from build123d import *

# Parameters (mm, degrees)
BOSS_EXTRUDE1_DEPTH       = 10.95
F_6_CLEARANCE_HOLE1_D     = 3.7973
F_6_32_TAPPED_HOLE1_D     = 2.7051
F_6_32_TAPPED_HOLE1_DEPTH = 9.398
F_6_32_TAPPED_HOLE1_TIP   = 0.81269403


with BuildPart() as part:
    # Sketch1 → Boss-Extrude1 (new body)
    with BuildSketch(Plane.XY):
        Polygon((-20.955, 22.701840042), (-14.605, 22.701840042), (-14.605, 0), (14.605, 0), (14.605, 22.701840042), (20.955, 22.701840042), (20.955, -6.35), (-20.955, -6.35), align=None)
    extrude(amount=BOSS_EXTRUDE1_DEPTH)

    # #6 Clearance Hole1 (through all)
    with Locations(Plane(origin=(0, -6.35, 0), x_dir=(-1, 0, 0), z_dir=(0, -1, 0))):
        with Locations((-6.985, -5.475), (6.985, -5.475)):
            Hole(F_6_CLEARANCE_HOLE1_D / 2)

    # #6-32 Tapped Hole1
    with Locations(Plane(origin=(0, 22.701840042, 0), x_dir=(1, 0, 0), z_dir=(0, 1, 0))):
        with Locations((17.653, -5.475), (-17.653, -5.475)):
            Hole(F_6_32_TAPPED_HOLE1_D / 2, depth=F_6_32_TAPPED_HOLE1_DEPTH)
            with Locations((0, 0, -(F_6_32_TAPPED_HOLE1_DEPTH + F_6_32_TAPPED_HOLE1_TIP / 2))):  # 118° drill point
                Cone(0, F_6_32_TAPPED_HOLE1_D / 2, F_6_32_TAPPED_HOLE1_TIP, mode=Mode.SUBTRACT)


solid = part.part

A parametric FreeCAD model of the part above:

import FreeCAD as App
import Part
import Sketcher
from FreeCAD import Vector
Q = App.Units.Quantity


def add_polygon(sketch, points):
    """Adds a closed chain of lines whose ends are joined by coincident constraints."""
    first, n = sketch.GeometryCount, len(points)
    for a, b in zip(points, points[1:] + points[:1]):
        sketch.addGeometry(Part.LineSegment(App.Vector(*a, 0), App.Vector(*b, 0)), False)
    for i in range(n):
        sketch.addConstraint(Sketcher.Constraint("Coincident", first + i, 2, first + (i + 1) % n, 1))

doc = App.newDocument("Part")
body = doc.addObject("PartDesign::Body", "Body")

# Sketch on XY plane
sketch1 = doc.addObject("Sketcher::SketchObject", "Sketch")
body.addObject(sketch1)
sketch1.AttachmentSupport = (doc.XY_Plane, [""])
sketch1.MapMode = "FlatFace"
add_polygon(sketch1, [(-14.605, 22.70184), (-20.955, 22.70184), (-20.955, -6.35), (20.955, -6.35), (20.955, 22.70184), (14.605, 22.70184), (14.605, 0), (-14.605, 0)])  # lines 0-7
sketch1.addConstraint([
    Sketcher.Constraint("Horizontal", 0),
    Sketcher.Constraint("Vertical", 1),
    Sketcher.Constraint("Horizontal", 2),
    Sketcher.Constraint("Vertical", 3),
    Sketcher.Constraint("Horizontal", 4),
    Sketcher.Constraint("Vertical", 5),
    Sketcher.Constraint("Horizontal", 6),
    Sketcher.Constraint("Vertical", 7),
    Sketcher.Constraint("Symmetric", 5, 2, 6, 2, -1, 1),
    Sketcher.Constraint("Symmetric", 0, 2, 3, 2, -2),
    Sketcher.Constraint("DistanceX", 0, 2, 0, 1, Q("0.25 in")),
    Sketcher.Constraint("DistanceX", 2, 1, 2, 2, Q("1.65 in")),
    Sketcher.Constraint("DistanceY", 1, 2, -1, 1, Q("0.25 in")),
    Sketcher.Constraint("DistanceY", 1, 2, 1, 1, 29.05184),
])
pad1 = doc.addObject("PartDesign::Pad", "Pad")
body.addObject(pad1)
pad1.Profile = sketch1
pad1.Length = 10.95

# Sketch on XZ plane
sketch2 = doc.addObject("Sketcher::SketchObject", "Sketch001")
body.addObject(sketch2)
sketch2.AttachmentSupport = (doc.XZ_Plane, [""])
sketch2.MapMode = "FlatFace"
sketch2.AttachmentOffset = App.Placement(Vector(0, 0, 0.25 * 25.4), App.Rotation())
sketch2.addGeometry([
    Part.Circle(Vector(6.985, 5.475, 0), Vector(0, 0, 1), 1.89865),
    Part.Circle(Vector(-6.985, 5.475, 0), Vector(0, 0, 1), 1.89865),
], False)
sketch2.addConstraint([
    Sketcher.Constraint("Equal", 0, 1),
    Sketcher.Constraint("Symmetric", 0, 3, 1, 3, -2),
    Sketcher.Constraint("Diameter", 0, Q("0.1495 in")),
    Sketcher.Constraint("DistanceX", 1, 3, 0, 3, Q("0.55 in")),
    Sketcher.Constraint("DistanceY", -1, 1, 0, 3, 5.475),
])
doc.recompute()
hole = doc.addObject("PartDesign::Hole", "Hole")
body.addObject(hole)
hole.Profile = sketch2
hole.ThreadType = "None"
hole.Diameter = Q("0.1495 in")
hole.DepthType = "ThroughAll"

# Sketch on XZ plane
sketch3 = doc.addObject("Sketcher::SketchObject", "Sketch002")
body.addObject(sketch3)
sketch3.AttachmentSupport = (doc.XZ_Plane, [""])
sketch3.MapMode = "FlatFace"
sketch3.AttachmentOffset = App.Placement(Vector(0, 0, -22.70184), App.Rotation())
sketch3.addGeometry([
    Part.Circle(Vector(17.653, 5.475, 0), Vector(0, 0, 1), 1.35255),
    Part.Circle(Vector(-17.653, 5.475, 0), Vector(0, 0, 1), 1.35255),
], False)
sketch3.addConstraint([
    Sketcher.Constraint("Equal", 0, 1),
    Sketcher.Constraint("Symmetric", 0, 3, 1, 3, -2),
    Sketcher.Constraint("Diameter", 0, Q("0.1065 in")),
    Sketcher.Constraint("DistanceX", 1, 3, 0, 3, Q("1.39 in")),
    Sketcher.Constraint("DistanceY", -1, 1, 0, 3, 5.475),
])
doc.recompute()
hole2 = doc.addObject("PartDesign::Hole", "Hole001")
body.addObject(hole2)
hole2.Profile = sketch3
hole2.ThreadType = "None"
hole2.Diameter = Q("0.1065 in")
hole2.DepthType = "Dimension"
hole2.Depth = Q("0.37 in")
hole2.DrillPoint = "Angled"
hole2.DrillPointAngle = 118
hole2.Reversed = True

doc.recompute()
